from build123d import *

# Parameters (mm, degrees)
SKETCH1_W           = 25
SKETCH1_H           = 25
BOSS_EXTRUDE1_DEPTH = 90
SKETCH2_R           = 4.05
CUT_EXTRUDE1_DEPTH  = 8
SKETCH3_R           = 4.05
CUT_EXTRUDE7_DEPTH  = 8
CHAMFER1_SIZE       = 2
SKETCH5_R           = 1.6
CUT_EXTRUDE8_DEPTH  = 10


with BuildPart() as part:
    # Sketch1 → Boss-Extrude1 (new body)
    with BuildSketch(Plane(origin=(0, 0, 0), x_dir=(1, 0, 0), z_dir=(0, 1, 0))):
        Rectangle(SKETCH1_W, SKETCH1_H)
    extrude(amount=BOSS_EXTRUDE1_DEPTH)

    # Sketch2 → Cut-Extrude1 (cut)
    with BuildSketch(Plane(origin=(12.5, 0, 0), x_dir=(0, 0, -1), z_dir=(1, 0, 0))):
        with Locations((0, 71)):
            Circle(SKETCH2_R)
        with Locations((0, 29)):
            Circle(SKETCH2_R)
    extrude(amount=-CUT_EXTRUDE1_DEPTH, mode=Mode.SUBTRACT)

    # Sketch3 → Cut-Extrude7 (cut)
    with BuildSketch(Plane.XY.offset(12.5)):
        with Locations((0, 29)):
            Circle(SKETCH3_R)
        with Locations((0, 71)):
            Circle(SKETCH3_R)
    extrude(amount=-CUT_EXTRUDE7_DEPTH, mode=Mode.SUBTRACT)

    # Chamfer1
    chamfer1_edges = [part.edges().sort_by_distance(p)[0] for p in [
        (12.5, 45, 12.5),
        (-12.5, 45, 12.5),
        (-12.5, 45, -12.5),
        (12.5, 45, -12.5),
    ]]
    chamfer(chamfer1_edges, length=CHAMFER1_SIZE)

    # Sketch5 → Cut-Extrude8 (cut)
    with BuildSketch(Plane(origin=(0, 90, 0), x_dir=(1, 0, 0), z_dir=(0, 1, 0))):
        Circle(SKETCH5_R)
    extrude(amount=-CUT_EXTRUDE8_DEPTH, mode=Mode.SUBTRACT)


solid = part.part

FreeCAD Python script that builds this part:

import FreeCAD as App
import Part
import Sketcher

V = App.Vector
Q = App.Units.Quantity


def edges_at(feature, points):
    """Names of the edges that pass closest to the given points."""
    edges = feature.Shape.Edges
    near = lambda p: min(range(len(edges)), key=lambda i: edges[i].distToShape(Part.Vertex(*p))[0])
    return sorted({f"Edge{near(p) + 1}" for p in points})

doc = App.newDocument("Part")
body = doc.addObject("PartDesign::Body", "Body")

sketch1 = body.newObject("Sketcher::SketchObject", "Sketch")
sketch1.AttachmentSupport = (doc.getObject("XZ_Plane"), [""])
sketch1.MapMode = "FlatFace"
sketch1.addGeometry([
    Part.LineSegment(V(-12.5, -12.5, 0), V(-12.5, 12.5, 0)),
    Part.LineSegment(V(-12.5, 12.5, 0), V(12.5, 12.5, 0)),
    Part.LineSegment(V(12.5, 12.5, 0), V(12.5, -12.5, 0)),
    Part.LineSegment(V(12.5, -12.5, 0), V(-12.5, -12.5, 0)),
], False)
sketch1.addConstraint([
    Sketcher.Constraint("Coincident", 0, 2, 1, 1),
    Sketcher.Constraint("Coincident", 1, 2, 2, 1),
    Sketcher.Constraint("Coincident", 2, 2, 3, 1),
    Sketcher.Constraint("Coincident", 3, 2, 0, 1),
    Sketcher.Constraint("Vertical", 0),
    Sketcher.Constraint("Horizontal", 1),
    Sketcher.Constraint("Vertical", 2),
    Sketcher.Constraint("Horizontal", 3),
    Sketcher.Constraint("Symmetric", 0, 2, 2, 2, -1, 1),
    Sketcher.Constraint("Equal", 3, 0),
    Sketcher.Constraint("DistanceX", 1, 1, 1, 2, Q("25 mm")),
])
pad1 = body.newObject("PartDesign::Pad", "Pad")
pad1.Profile = sketch1
pad1.Length = 90
pad1.Reversed = True

sketch2 = body.newObject("Sketcher::SketchObject", "Sketch001")
sketch2.AttachmentSupport = (doc.getObject("YZ_Plane"), [""])
sketch2.MapMode = "FlatFace"
sketch2.AttachmentOffset = App.Placement(V(0, 0, 12.5), App.Rotation())
sketch2.addGeometry([
    Part.Circle(V(71, 0, 0), V(0, 0, 1), 4.05),
    Part.Circle(V(29, 0, 0), V(0, 0, 1), 4.05),
], False)
sketch2.addConstraint([
    Sketcher.Constraint("Equal", 0, 1),
    Sketcher.Constraint("PointOnObject", 0, 3, -1),
    Sketcher.Constraint("PointOnObject", 1, 3, -1),
    Sketcher.Constraint("Diameter", 0, Q("8.1 mm")),
    Sketcher.Constraint("DistanceX", -1, 1, 0, 3, Q("71 mm")),
    Sketcher.Constraint("DistanceX", -1, 1, 1, 3, Q("29 mm")),
])
pocket1 = body.newObject("PartDesign::Pocket", "Pocket")
pocket1.Profile = sketch2
pocket1.Length = 8

sketch3 = body.newObject("Sketcher::SketchObject", "Sketch002")
sketch3.AttachmentSupport = (doc.getObject("XY_Plane"), [""])
sketch3.MapMode = "FlatFace"
sketch3.AttachmentOffset = App.Placement(V(0, 0, 12.5), App.Rotation())
sketch3.addGeometry([
    Part.Circle(V(0, 29, 0), V(0, 0, 1), 4.05),
    Part.Circle(V(0, 71, 0), V(0, 0, 1), 4.05),
], False)
sketch3.addConstraint([
    Sketcher.Constraint("Equal", 0, 1),
    Sketcher.Constraint("PointOnObject", 0, 3, -2),
    Sketcher.Constraint("PointOnObject", 1, 3, -2),
    Sketcher.Constraint("Diameter", 0, Q("8.1 mm")),
    Sketcher.Constraint("DistanceY", -1, 1, 0, 3, Q("29 mm")),
    Sketcher.Constraint("DistanceY", -1, 1, 1, 3, Q("71 mm")),
])
pocket2 = body.newObject("PartDesign::Pocket", "Pocket001")
pocket2.Profile = sketch3
pocket2.Length = 8
doc.recompute()

chamfer = body.newObject("PartDesign::Chamfer", "Chamfer")
chamfer.Base = (pocket2, edges_at(pocket2, [
    (12.5, 45, 12.5),
    (-12.5, 45, 12.5),
    (-12.5, 45, -12.5),
    (12.5, 45, -12.5),
]))
chamfer.Size = 2

sketch4 = body.newObject("Sketcher::SketchObject", "Sketch003")
sketch4.AttachmentSupport = (doc.getObject("XZ_Plane"), [""])
sketch4.MapMode = "FlatFace"
sketch4.AttachmentOffset = App.Placement(V(0, 0, -90), App.Rotation())
sketch4.addGeometry(Part.Circle(V(0, 0, 0), V(0, 0, 1), 1.6), False)
sketch4.addConstraint([
    Sketcher.Constraint("Coincident", 0, 3, -1, 1),
    Sketcher.Constraint("Diameter", 0, Q("3.2 mm")),
])
pocket3 = body.newObject("PartDesign::Pocket", "Pocket002")
pocket3.Profile = sketch4
pocket3.Length = 10
pocket3.Reversed = True

doc.recompute()
